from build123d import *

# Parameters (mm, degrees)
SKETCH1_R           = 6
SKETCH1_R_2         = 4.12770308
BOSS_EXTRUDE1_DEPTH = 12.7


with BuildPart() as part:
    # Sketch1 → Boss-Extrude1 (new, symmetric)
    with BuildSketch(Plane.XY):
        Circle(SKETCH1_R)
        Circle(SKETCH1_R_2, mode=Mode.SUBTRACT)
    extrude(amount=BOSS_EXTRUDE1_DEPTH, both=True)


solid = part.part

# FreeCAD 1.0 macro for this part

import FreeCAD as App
import Part
import Sketcher
from FreeCAD import Vector

doc = App.newDocument("Part")
body = doc.addObject("PartDesign::Body", "Body")

# Sketch on XY plane
sketch1 = doc.addObject("Sketcher::SketchObject", "Sketch")
body.addObject(sketch1)
sketch1.AttachmentSupport = (doc.XY_Plane, [""])
sketch1.MapMode = "FlatFace"
sketch1.addGeometry([
    Part.Circle(Vector(0, 0, 0), Vector(0, 0, 1), 6),
    Part.Circle(Vector(0, 0, 0), Vector(0, 0, 1), 4.1),
], False)
sketch1.addConstraint([
    Sketcher.Constraint("Coincident", 0, 3, -1, 1),
    Sketcher.Constraint("Coincident", 1, 3, -1, 1),
    Sketcher.Constraint("Diameter", 0, 12.0),
    Sketcher.Constraint("Diameter", 1, 8.255406),
])
pad1 = doc.addObject("PartDesign::Pad", "Pad")
body.addObject(pad1)
pad1.Profile = sketch1
pad1.Length = 25.4
pad1.Midplane = True

doc.recompute()
